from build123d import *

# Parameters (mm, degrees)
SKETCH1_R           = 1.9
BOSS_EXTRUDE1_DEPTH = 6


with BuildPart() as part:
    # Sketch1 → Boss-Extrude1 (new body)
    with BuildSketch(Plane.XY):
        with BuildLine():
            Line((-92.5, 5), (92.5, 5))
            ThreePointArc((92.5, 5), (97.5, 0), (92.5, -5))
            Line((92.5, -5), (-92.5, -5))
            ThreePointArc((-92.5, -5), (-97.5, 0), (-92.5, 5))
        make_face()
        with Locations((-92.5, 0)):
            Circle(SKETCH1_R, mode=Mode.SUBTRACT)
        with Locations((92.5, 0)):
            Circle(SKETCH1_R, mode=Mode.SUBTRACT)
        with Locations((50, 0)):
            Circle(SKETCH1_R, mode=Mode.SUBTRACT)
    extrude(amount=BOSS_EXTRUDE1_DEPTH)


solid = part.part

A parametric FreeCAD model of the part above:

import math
import FreeCAD as App
import Part
import Sketcher

V = App.Vector
Q = App.Units.Quantity

doc = App.newDocument("Part")
params = doc.addObject("Spreadsheet::Sheet", "Params")
for row, (alias, value) in enumerate([
    ("sketch1_radius", "5 mm"),
    ("sketch1_diameter", "3.8 mm"),
    ("sketch1_width", "185 mm"),
    ("pad1_length", "6 mm"),
], start=1):
    params.set(f"A{row}", alias)
    params.set(f"B{row}", "=" + value)
    params.setAlias(f"B{row}", alias)

body = doc.addObject("PartDesign::Body", "Body")

sketch1 = doc.addObject("Sketcher::SketchObject", "Sketch")
body.addObject(sketch1)
sketch1.AttachmentSupport = (doc.XY_Plane, [""])
sketch1.MapMode = "FlatFace"
sketch1.addGeometry([
    Part.LineSegment(V(92.5, 5, 0), V(-92.5, 5, 0)),
    Part.ArcOfCircle(Part.Circle(V(-92.5, 0, 0), V(0, 0, 1), 5), math.radians(90), math.radians(270)),
    Part.LineSegment(V(-92.5, -5, 0), V(92.5, -5, 0)),
    Part.ArcOfCircle(Part.Circle(V(92.5, 0, 0), V(0, 0, 1), 5), math.radians(-90), math.radians(90)),
    Part.Circle(V(92.5, 0, 0), V(0, 0, 1), 1.9),
    Part.Circle(V(50, 0, 0), V(0, 0, 1), 1.9),
    Part.Circle(V(-92.5, 0, 0), V(0, 0, 1), 1.9),
], False)
sketch1.addConstraint([
    Sketcher.Constraint("Tangent", 0, 2, 1, 1),
    Sketcher.Constraint("Tangent", 1, 2, 2, 1),
    Sketcher.Constraint("Tangent", 2, 2, 3, 1),
    Sketcher.Constraint("Tangent", 3, 2, 0, 1),
    Sketcher.Constraint("Horizontal", 0),
    Sketcher.Constraint("Horizontal", 2),
    Sketcher.Constraint("Coincident", 4, 3, 3, 3),
    Sketcher.Constraint("Coincident", 6, 3, 1, 3),
    Sketcher.Constraint("Equal", 4, 5),
    Sketcher.Constraint("Equal", 5, 6),
    Sketcher.Constraint("Symmetric", 1, 3, 3, 3, -1, 1),
    Sketcher.Constraint("PointOnObject", 5, 3, -1),
    Sketcher.Constraint("Radius", 1, Q("5 mm")),
    Sketcher.Constraint("Diameter", 4, Q("3.8 mm")),
    Sketcher.Constraint("DistanceX", 0, 2, 0, 1, Q("185 mm")),
    Sketcher.Constraint("DistanceX", -1, 1, 5, 3, Q("50 mm")),
])
sketch1.setExpression("Constraints[12]", "Params.sketch1_radius")
sketch1.setExpression("Constraints[13]", "Params.sketch1_diameter")
sketch1.setExpression("Constraints[14]", "Params.sketch1_width")
pad1 = doc.addObject("PartDesign::Pad", "Pad")
body.addObject(pad1)
pad1.Profile = sketch1
pad1.setExpression("Length", "Params.pad1_length")

doc.recompute()
